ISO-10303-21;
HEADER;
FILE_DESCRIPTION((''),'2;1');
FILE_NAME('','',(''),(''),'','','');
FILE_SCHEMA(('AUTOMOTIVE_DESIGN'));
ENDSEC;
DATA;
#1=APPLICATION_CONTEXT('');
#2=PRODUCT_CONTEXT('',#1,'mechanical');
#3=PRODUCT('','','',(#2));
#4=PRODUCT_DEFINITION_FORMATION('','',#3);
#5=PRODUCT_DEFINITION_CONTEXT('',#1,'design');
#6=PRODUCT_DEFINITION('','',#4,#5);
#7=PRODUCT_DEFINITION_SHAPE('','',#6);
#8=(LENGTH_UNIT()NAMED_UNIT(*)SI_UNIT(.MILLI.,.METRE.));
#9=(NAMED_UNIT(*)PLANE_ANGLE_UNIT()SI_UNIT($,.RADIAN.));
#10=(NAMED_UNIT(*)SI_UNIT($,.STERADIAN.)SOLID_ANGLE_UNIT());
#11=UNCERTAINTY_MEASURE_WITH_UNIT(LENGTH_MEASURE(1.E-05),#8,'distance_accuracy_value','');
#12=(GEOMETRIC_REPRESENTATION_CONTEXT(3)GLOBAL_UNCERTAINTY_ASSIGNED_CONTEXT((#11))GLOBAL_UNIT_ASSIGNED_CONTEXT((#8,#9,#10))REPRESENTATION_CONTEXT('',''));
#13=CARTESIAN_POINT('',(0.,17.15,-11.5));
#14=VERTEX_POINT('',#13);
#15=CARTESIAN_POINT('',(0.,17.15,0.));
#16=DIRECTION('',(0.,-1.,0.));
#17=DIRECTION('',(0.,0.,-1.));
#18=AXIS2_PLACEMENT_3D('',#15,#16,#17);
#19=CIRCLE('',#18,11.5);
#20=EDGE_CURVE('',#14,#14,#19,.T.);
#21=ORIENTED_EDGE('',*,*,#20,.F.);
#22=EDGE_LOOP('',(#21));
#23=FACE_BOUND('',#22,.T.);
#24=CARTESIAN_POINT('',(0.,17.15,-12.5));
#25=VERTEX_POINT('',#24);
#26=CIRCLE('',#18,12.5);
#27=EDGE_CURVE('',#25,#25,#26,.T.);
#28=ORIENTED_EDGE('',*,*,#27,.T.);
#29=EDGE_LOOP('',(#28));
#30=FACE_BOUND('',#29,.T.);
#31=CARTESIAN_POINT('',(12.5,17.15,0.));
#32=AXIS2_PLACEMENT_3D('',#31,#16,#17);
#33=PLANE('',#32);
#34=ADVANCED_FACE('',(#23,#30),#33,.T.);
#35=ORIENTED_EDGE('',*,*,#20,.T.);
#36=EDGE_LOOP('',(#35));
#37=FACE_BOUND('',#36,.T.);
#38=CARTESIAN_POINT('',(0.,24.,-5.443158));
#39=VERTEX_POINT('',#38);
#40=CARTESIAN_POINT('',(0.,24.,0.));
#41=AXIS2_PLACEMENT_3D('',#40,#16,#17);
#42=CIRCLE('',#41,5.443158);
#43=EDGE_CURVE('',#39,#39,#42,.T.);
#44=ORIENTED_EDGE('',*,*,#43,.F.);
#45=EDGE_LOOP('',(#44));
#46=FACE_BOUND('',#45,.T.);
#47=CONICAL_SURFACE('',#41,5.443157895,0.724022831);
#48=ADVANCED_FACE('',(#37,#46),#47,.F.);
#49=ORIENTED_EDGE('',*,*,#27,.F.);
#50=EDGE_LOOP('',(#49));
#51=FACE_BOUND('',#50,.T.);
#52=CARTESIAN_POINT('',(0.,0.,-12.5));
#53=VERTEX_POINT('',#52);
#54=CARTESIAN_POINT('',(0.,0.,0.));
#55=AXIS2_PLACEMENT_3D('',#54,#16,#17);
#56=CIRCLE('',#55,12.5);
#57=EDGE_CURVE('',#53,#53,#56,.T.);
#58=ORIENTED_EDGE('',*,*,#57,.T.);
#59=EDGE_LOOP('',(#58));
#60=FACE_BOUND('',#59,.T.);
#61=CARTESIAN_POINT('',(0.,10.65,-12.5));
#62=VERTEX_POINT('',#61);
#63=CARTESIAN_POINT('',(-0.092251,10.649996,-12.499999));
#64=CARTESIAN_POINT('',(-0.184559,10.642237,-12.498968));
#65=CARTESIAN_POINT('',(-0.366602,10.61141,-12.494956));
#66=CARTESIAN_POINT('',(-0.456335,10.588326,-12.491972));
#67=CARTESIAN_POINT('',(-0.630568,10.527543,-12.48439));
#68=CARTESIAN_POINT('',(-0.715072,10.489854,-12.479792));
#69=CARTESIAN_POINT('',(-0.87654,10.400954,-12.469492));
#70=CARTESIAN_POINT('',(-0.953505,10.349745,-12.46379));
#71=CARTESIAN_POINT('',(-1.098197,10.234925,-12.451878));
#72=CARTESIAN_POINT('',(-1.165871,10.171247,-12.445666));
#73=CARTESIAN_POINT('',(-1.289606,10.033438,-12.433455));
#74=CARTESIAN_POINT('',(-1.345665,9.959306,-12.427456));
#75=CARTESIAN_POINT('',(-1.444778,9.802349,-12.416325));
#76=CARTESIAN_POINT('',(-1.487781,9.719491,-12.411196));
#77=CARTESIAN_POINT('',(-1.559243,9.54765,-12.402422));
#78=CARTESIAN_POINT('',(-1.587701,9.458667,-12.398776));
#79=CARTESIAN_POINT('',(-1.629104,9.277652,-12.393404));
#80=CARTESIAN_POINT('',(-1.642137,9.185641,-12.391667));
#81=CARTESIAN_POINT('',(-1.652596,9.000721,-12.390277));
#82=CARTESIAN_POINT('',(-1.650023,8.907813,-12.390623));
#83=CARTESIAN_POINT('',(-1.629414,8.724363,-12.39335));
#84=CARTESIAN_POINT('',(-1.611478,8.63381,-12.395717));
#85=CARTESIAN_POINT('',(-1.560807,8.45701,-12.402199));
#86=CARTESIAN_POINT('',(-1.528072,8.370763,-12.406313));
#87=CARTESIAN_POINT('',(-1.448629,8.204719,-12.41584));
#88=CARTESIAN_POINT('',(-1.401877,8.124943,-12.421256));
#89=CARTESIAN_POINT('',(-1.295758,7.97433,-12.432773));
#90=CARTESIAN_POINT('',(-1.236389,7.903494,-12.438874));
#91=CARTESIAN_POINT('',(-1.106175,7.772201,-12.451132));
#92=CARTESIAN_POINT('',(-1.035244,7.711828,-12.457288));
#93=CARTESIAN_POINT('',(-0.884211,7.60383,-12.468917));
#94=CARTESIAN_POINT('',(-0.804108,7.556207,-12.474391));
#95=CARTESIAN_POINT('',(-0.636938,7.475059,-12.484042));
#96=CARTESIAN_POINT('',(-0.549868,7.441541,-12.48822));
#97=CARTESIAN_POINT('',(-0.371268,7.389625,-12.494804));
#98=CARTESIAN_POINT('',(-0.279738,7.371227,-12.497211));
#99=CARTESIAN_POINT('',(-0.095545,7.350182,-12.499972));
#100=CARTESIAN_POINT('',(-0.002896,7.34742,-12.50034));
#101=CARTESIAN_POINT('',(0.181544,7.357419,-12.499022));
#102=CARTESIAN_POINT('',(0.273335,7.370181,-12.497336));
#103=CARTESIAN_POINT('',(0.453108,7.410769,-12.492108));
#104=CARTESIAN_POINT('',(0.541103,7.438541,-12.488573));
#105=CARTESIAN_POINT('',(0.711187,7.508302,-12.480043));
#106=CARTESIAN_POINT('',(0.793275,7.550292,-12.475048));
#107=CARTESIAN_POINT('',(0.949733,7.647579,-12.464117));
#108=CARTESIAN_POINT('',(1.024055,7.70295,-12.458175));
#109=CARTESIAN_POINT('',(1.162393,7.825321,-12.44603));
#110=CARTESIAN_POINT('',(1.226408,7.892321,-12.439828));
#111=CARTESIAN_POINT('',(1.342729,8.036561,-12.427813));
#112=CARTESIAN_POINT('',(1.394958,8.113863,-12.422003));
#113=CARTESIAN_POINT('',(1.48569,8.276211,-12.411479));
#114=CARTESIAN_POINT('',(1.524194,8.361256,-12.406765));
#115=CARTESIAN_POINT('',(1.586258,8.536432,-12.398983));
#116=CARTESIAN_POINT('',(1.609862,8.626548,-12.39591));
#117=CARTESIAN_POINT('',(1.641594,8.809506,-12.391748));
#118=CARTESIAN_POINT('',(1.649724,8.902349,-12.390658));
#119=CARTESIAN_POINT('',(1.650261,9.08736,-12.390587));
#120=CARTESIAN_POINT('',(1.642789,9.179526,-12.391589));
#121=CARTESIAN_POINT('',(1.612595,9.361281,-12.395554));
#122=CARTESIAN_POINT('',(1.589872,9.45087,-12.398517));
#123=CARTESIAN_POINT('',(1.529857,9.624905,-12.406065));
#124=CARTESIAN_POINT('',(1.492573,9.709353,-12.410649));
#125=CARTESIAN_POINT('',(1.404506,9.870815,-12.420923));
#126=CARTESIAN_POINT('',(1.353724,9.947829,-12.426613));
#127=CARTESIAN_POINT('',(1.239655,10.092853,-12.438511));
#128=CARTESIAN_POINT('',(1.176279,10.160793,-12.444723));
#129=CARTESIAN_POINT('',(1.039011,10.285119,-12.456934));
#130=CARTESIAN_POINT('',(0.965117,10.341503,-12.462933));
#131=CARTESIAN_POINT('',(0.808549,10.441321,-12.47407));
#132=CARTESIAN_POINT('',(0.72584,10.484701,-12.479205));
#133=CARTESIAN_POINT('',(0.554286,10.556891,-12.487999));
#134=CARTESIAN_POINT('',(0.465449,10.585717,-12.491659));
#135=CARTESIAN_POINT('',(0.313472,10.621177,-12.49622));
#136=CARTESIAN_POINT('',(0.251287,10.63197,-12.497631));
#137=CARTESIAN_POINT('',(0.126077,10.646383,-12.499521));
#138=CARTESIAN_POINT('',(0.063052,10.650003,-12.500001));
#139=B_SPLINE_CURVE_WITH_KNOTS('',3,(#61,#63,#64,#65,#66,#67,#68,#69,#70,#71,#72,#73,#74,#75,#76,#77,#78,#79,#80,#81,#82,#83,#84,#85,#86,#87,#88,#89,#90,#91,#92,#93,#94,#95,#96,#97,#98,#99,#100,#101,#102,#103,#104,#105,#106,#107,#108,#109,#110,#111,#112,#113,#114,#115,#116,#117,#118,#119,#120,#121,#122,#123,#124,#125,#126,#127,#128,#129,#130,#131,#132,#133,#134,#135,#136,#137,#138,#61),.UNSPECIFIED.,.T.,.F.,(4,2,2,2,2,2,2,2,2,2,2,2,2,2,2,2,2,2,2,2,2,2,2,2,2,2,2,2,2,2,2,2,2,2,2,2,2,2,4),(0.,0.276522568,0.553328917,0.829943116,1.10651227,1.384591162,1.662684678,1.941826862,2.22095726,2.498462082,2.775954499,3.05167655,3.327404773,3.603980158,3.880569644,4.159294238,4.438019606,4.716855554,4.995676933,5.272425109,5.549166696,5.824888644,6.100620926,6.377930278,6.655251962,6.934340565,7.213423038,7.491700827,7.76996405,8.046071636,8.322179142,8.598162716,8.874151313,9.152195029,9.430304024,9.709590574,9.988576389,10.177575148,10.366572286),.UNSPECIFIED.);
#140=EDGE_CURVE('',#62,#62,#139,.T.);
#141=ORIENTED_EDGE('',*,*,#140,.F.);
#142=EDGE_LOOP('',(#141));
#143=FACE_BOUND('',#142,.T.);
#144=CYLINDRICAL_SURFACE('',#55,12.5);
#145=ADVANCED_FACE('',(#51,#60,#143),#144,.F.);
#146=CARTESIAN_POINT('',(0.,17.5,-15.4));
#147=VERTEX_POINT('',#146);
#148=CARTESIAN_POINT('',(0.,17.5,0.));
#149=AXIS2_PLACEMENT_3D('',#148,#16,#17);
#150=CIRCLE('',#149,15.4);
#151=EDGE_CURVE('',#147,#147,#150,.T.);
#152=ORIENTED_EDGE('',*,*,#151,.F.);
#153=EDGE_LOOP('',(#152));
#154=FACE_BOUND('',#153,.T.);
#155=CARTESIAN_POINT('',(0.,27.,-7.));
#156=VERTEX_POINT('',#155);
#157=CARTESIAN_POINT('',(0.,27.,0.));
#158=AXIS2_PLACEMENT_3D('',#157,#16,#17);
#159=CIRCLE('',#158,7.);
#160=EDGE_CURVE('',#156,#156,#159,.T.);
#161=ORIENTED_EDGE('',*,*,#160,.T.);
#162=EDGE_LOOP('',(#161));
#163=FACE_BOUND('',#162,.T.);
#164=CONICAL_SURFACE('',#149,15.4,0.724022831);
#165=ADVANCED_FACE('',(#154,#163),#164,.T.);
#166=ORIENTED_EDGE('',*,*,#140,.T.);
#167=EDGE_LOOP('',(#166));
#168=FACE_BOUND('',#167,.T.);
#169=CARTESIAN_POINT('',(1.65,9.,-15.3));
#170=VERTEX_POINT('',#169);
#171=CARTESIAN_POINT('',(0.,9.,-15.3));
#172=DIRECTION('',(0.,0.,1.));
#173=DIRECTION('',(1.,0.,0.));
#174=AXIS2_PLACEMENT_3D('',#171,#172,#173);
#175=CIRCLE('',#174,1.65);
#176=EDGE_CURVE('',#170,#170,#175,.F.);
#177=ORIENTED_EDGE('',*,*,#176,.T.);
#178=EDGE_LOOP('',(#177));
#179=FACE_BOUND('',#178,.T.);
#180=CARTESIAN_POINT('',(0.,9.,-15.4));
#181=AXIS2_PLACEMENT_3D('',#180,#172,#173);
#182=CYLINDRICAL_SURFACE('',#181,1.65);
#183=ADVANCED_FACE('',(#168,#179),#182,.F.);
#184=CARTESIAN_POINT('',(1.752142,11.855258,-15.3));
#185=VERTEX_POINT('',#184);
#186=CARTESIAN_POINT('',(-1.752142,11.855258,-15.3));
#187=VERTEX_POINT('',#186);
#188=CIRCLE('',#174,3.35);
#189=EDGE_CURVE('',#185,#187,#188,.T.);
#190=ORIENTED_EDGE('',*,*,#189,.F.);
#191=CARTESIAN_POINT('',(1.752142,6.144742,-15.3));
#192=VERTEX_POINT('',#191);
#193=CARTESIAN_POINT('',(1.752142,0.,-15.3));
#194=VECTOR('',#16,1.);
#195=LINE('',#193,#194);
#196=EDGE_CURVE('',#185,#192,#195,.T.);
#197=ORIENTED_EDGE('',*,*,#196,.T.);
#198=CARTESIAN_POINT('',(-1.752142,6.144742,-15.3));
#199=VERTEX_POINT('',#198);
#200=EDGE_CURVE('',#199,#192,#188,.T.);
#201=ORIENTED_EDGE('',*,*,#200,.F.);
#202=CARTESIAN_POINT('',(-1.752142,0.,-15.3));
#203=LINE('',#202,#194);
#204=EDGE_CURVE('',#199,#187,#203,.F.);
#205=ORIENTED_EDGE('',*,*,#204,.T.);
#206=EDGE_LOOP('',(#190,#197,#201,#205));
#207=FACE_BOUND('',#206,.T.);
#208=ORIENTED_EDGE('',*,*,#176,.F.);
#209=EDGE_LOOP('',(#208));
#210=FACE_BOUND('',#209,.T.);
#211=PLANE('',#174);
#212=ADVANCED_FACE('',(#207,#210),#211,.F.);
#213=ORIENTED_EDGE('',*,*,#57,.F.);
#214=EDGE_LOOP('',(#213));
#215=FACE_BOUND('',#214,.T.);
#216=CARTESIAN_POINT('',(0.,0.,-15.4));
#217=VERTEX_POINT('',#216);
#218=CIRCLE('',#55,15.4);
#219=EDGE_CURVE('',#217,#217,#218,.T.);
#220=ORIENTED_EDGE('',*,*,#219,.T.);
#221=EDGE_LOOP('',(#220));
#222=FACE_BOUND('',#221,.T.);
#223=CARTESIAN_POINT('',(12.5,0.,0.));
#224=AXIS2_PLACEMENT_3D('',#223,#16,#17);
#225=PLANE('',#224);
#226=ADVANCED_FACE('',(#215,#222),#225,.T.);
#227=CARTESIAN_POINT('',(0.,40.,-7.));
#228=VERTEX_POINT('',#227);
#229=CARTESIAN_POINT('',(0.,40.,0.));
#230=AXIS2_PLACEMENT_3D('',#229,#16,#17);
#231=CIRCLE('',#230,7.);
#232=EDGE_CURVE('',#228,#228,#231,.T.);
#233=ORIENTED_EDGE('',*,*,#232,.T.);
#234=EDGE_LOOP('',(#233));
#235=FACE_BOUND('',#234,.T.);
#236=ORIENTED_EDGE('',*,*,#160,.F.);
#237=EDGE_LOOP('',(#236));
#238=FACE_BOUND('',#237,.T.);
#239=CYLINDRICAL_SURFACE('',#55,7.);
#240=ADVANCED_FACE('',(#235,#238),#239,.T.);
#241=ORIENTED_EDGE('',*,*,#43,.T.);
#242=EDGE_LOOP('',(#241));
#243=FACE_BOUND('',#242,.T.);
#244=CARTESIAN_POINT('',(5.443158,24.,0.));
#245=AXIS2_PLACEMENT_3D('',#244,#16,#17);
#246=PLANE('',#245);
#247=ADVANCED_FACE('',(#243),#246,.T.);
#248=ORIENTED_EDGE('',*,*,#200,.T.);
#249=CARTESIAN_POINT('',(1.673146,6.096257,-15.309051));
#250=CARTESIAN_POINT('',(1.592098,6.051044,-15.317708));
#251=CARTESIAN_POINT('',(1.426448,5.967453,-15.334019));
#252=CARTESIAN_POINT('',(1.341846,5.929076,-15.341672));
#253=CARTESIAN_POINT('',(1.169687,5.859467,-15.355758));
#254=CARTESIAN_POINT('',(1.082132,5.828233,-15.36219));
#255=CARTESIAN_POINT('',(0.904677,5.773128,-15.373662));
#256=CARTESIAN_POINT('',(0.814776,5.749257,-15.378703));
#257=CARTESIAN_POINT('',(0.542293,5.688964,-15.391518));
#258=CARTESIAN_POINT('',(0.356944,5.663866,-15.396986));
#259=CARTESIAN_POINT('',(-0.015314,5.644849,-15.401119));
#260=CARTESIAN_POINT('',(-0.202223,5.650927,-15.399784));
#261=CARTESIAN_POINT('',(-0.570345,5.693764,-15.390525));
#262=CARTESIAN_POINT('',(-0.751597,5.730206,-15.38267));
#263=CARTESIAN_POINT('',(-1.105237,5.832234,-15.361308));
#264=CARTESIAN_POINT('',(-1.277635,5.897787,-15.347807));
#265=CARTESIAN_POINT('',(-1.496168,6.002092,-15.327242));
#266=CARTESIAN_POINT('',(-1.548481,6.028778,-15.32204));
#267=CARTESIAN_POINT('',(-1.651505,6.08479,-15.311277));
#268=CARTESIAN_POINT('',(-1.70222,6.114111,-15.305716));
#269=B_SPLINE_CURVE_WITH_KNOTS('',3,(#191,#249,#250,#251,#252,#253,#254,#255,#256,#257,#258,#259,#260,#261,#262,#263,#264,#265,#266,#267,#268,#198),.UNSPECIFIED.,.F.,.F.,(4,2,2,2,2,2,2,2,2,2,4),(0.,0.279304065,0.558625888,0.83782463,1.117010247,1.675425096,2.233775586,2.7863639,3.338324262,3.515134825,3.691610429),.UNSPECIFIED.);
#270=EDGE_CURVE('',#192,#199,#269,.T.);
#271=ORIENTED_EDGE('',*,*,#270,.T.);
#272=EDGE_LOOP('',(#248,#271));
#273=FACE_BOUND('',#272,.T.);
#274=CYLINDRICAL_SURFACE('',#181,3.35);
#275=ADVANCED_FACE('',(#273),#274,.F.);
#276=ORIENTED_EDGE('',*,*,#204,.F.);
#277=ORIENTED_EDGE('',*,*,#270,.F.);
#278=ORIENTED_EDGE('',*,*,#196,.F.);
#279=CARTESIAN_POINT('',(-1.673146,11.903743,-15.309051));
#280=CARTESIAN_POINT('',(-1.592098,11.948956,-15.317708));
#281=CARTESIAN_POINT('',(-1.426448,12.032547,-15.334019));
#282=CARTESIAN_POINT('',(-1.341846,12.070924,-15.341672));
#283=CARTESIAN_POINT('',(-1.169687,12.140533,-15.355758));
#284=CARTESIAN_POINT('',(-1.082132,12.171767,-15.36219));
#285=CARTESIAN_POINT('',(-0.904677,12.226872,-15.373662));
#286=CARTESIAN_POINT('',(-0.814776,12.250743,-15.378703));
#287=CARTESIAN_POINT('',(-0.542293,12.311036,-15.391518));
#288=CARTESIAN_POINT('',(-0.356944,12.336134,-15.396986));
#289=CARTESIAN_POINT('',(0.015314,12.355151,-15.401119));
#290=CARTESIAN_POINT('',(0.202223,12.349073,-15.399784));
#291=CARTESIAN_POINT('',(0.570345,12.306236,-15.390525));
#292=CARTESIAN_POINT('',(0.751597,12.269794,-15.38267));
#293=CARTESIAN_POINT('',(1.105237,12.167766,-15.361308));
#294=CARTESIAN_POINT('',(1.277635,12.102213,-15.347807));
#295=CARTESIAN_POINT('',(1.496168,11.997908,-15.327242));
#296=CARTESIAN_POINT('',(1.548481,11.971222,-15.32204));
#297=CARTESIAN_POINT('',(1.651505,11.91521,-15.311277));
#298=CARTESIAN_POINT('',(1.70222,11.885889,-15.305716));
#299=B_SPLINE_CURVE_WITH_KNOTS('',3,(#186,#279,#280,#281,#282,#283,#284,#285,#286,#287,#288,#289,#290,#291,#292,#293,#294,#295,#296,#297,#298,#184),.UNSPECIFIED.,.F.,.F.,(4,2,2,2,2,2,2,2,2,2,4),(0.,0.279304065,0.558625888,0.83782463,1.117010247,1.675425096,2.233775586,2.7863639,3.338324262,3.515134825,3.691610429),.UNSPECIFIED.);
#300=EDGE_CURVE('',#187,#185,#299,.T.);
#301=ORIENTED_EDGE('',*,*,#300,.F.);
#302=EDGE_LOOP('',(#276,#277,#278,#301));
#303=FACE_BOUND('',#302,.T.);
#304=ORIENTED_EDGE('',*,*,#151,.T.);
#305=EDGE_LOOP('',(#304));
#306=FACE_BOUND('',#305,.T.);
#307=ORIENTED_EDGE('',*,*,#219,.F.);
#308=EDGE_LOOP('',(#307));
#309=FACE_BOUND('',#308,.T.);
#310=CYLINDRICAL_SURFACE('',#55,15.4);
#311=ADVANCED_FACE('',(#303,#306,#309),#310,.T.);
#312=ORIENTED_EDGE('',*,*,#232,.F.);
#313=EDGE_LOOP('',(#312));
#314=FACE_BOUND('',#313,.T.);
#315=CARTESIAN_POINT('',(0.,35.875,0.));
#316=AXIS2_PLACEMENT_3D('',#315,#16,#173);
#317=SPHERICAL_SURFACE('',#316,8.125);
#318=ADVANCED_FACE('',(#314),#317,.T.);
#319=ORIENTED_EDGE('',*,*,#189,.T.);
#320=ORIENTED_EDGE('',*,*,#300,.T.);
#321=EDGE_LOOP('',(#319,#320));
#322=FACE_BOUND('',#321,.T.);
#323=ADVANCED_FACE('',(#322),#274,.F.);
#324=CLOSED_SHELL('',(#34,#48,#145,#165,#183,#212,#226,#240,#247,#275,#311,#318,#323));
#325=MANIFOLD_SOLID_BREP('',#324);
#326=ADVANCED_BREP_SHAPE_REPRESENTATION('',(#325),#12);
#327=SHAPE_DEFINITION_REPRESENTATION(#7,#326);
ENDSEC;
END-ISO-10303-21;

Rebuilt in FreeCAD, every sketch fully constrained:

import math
import FreeCAD as App
import Part
import Sketcher
from FreeCAD import Vector

doc = App.newDocument("Part")
body = doc.addObject("PartDesign::Body", "Body")

# Sketch on XY plane
sketch1 = doc.addObject("Sketcher::SketchObject", "Sketch")
body.addObject(sketch1)
sketch1.AttachmentSupport = (doc.XY_Plane, [""])
sketch1.MapMode = "FlatFace"
sketch1.addGeometry(Part.LineSegment(Vector(12.5, 0, 0), Vector(15.4, 0, 0)), False)
sketch1.addGeometry(Part.LineSegment(Vector(15.4, 0, 0), Vector(15.4, 17.5, 0)), False)
sketch1.addGeometry(Part.LineSegment(Vector(15.4, 17.5, 0), Vector(7, 27, 0)), False)
sketch1.addGeometry(Part.LineSegment(Vector(7, 27, 0), Vector(7, 40, 0)), False)
sketch1.addGeometry(Part.ArcOfCircle(Part.Circle(Vector(0, 35.875, 0), Vector(0, 0, 1), 8.125), math.radians(30.510237), math.radians(90)), False)
sketch1.addGeometry(Part.LineSegment(Vector(0, 44, 0), Vector(0, 24, 0)), False)
sketch1.addGeometry(Part.LineSegment(Vector(0, 24, 0), Vector(5.443158, 24, 0)), False)
sketch1.addGeometry(Part.LineSegment(Vector(5.443158, 24, 0), Vector(11.5, 17.15, 0)), False)
sketch1.addGeometry(Part.LineSegment(Vector(11.5, 17.15, 0), Vector(12.5, 17.15, 0)), False)
sketch1.addGeometry(Part.LineSegment(Vector(12.5, 17.15, 0), Vector(12.5, 0, 0)), False)
sketch1.addConstraint(Sketcher.Constraint("Coincident", 0, 2, 1, 1))
sketch1.addConstraint(Sketcher.Constraint("Coincident", 1, 2, 2, 1))
sketch1.addConstraint(Sketcher.Constraint("Coincident", 2, 2, 3, 1))
sketch1.addConstraint(Sketcher.Constraint("Coincident", 3, 2, 4, 1))
sketch1.addConstraint(Sketcher.Constraint("Coincident", 4, 2, 5, 1))
sketch1.addConstraint(Sketcher.Constraint("Coincident", 5, 2, 6, 1))
sketch1.addConstraint(Sketcher.Constraint("Coincident", 6, 2, 7, 1))
sketch1.addConstraint(Sketcher.Constraint("Coincident", 7, 2, 8, 1))
sketch1.addConstraint(Sketcher.Constraint("Coincident", 8, 2, 9, 1))
sketch1.addConstraint(Sketcher.Constraint("Coincident", 9, 2, 0, 1))
sketch1.addConstraint(Sketcher.Constraint("Horizontal", 0))
sketch1.addConstraint(Sketcher.Constraint("Vertical", 1))
sketch1.addConstraint(Sketcher.Constraint("Vertical", 3))
sketch1.addConstraint(Sketcher.Constraint("Vertical", 5))
sketch1.addConstraint(Sketcher.Constraint("Horizontal", 6))
sketch1.addConstraint(Sketcher.Constraint("Horizontal", 8))
sketch1.addConstraint(Sketcher.Constraint("Vertical", 9))
sketch1.addConstraint(Sketcher.Constraint("PointOnObject", 4, 3, -2))
sketch1.addConstraint(Sketcher.Constraint("PointOnObject", 0, 2, -1))
sketch1.addConstraint(Sketcher.Constraint("PointOnObject", 4, 2, -2))
sketch1.addConstraint(Sketcher.Constraint("Parallel", 2, 7))
sketch1.addConstraint(Sketcher.Constraint("DistanceX", 8, 1, 8, 2, 1.0))
sketch1.addConstraint(Sketcher.Constraint("DistanceY", 3, 1, 3, 2, 13.0))
sketch1.addConstraint(Sketcher.Constraint("DistanceY", 5, 2, 5, 1, 20.0))
sketch1.addConstraint(Sketcher.Constraint("DistanceX", 0, 1, 0, 2, 2.9))
sketch1.addConstraint(Sketcher.Constraint("DistanceY", 1, 1, 1, 2, 17.5))
sketch1.addConstraint(Sketcher.Constraint("DistanceX", -1, 1, 2, 2, 7.0))
sketch1.addConstraint(Sketcher.Constraint("DistanceY", -1, 1, 2, 2, 27.0))
sketch1.addConstraint(Sketcher.Constraint("DistanceY", -1, 1, 4, 2, 44.0))
sketch1.addConstraint(Sketcher.Constraint("DistanceY", 9, 2, 9, 1, 17.15))
sketch1.addConstraint(Sketcher.Constraint("DistanceX", -1, 1, 0, 2, 15.4))
revolution = doc.addObject("PartDesign::Revolution", "Revolution")
body.addObject(revolution)
revolution.Profile = sketch1
revolution.ReferenceAxis = (sketch1, ["V_Axis"])
revolution.Angle = 360

# Sketch on XY plane
sketch2 = doc.addObject("Sketcher::SketchObject", "Sketch001")
body.addObject(sketch2)
sketch2.AttachmentSupport = (doc.XY_Plane, [""])
sketch2.MapMode = "FlatFace"
sketch2.addGeometry(Part.Circle(Vector(0, 9, 0), Vector(0, 0, 1), 1.65), False)
sketch2.addConstraint(Sketcher.Constraint("PointOnObject", 0, 3, -2))
sketch2.addConstraint(Sketcher.Constraint("Diameter", 0, 3.3))
sketch2.addConstraint(Sketcher.Constraint("DistanceY", -1, 1, 0, 3, 9.0))
pocket1 = doc.addObject("PartDesign::Pocket", "Pocket")
body.addObject(pocket1)
pocket1.Profile = sketch2
pocket1.Type = "ThroughAll"

# Sketch on XY plane
sketch3 = doc.addObject("Sketcher::SketchObject", "Sketch002")
body.addObject(sketch3)
sketch3.AttachmentSupport = (doc.XY_Plane, [""])
sketch3.MapMode = "FlatFace"
sketch3.AttachmentOffset = App.Placement(Vector(0, 0, -15.3), App.Rotation())
sketch3.addGeometry(Part.Circle(Vector(0, 9, 0), Vector(0, 0, 1), 3.35), False)
sketch3.addConstraint(Sketcher.Constraint("PointOnObject", 0, 3, -2))
sketch3.addConstraint(Sketcher.Constraint("Diameter", 0, 6.7))
sketch3.addConstraint(Sketcher.Constraint("DistanceY", -1, 1, 0, 3, 9.0))
pocket2 = doc.addObject("PartDesign::Pocket", "Pocket001")
body.addObject(pocket2)
pocket2.Profile = sketch3
pocket2.Type = "ThroughAll"

doc.recompute()
